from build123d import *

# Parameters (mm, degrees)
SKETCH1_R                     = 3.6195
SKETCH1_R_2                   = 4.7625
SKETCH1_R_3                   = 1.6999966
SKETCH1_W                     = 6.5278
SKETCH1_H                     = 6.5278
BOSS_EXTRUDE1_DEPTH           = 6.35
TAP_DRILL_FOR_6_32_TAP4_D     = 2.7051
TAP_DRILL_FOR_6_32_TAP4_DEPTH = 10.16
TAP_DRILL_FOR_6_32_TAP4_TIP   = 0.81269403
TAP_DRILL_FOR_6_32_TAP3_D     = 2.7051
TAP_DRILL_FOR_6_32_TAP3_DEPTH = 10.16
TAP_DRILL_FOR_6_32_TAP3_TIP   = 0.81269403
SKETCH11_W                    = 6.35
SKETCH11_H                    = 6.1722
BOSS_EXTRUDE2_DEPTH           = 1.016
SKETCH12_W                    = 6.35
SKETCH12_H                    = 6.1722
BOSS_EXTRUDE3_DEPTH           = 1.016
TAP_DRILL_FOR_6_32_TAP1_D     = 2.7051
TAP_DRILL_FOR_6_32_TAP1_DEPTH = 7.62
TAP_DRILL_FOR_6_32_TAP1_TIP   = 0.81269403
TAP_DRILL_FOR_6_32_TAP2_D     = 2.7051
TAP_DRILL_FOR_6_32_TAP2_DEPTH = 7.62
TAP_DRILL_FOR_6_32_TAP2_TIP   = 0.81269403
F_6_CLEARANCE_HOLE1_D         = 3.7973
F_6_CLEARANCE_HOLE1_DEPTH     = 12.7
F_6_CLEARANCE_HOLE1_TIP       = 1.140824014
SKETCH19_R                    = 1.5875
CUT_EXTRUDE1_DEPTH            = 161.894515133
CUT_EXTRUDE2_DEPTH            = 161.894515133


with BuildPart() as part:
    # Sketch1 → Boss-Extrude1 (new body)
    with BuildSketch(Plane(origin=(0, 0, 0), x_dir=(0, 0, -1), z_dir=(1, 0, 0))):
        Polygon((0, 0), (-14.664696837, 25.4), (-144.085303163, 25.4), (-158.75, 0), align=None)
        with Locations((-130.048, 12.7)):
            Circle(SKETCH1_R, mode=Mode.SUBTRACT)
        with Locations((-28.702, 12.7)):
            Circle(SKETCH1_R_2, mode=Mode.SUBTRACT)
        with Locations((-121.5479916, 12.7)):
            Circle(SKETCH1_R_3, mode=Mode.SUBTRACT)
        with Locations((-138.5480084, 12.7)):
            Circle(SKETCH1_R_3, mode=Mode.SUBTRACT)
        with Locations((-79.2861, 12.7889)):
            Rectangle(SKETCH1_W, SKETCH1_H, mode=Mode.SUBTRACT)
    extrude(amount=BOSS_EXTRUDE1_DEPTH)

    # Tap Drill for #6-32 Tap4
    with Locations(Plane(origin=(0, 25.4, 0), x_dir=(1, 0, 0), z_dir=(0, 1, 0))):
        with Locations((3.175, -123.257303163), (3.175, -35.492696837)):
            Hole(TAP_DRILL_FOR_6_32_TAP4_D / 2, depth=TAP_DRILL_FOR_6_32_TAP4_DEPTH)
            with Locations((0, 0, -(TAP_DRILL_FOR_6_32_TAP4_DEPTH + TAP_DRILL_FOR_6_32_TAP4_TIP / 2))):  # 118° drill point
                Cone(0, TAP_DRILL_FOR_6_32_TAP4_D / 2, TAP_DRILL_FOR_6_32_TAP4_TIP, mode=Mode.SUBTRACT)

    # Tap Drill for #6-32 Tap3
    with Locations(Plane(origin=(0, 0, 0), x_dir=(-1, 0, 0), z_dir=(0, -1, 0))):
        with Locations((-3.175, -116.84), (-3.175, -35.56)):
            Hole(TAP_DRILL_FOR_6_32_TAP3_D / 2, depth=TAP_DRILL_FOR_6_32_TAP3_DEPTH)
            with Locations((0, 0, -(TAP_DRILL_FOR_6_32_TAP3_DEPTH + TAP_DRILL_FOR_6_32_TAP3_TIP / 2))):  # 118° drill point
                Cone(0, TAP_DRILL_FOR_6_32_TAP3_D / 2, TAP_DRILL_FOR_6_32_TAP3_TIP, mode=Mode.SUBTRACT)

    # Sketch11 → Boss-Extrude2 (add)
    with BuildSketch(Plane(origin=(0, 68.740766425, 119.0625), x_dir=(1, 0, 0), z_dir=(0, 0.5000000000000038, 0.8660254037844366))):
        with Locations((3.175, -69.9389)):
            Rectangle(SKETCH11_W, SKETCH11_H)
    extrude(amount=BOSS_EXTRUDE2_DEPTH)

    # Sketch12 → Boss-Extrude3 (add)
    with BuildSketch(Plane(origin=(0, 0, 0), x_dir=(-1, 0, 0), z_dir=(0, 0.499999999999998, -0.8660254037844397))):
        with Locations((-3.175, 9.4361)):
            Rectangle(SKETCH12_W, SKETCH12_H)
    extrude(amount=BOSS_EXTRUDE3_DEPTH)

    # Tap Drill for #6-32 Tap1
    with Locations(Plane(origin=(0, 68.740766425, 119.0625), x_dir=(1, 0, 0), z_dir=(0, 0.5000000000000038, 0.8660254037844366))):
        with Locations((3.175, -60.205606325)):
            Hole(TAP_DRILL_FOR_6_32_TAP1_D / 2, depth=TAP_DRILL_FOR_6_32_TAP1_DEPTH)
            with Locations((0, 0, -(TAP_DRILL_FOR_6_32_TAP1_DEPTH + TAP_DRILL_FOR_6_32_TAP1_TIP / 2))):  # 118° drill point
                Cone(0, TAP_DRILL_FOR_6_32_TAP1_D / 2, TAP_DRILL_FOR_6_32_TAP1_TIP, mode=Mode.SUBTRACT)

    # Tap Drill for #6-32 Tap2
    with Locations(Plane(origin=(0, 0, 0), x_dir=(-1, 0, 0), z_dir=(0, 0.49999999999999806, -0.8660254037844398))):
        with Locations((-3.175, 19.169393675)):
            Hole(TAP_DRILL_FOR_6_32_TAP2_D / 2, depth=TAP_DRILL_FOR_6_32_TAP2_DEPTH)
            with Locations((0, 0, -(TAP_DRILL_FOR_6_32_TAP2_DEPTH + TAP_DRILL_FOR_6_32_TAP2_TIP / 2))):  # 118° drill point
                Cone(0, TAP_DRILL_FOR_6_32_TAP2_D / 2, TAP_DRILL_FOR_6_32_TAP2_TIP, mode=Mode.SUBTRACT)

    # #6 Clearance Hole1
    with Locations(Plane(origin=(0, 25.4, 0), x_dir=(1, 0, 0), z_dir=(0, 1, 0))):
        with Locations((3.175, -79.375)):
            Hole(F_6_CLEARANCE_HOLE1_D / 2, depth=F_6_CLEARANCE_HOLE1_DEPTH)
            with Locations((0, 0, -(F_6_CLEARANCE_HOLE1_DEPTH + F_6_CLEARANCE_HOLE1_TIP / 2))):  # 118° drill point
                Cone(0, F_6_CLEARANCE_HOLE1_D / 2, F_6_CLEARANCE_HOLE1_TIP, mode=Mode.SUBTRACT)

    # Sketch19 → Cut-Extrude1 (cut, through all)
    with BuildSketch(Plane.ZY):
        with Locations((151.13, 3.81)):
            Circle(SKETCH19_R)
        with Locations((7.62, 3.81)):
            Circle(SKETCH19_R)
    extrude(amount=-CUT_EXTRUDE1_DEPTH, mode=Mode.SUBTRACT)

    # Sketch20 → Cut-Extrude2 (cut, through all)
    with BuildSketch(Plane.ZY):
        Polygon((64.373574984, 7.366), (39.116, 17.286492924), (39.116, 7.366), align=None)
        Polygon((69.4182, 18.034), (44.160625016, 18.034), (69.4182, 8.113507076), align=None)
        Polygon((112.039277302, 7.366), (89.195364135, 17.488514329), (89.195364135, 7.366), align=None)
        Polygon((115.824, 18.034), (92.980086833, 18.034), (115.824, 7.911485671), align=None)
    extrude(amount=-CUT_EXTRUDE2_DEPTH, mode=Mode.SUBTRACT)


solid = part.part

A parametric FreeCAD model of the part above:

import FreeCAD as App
import Part
import Sketcher
from FreeCAD import Vector
Q = App.Units.Quantity


def add_polygon(sketch, points):
    """Adds a closed chain of lines whose ends are joined by coincident constraints."""
    first, n = sketch.GeometryCount, len(points)
    for a, b in zip(points, points[1:] + points[:1]):
        sketch.addGeometry(Part.LineSegment(App.Vector(*a, 0), App.Vector(*b, 0)), False)
    for i in range(n):
        sketch.addConstraint(Sketcher.Constraint("Coincident", first + i, 2, first + (i + 1) % n, 1))

doc = App.newDocument("Part")
params = doc.addObject("Spreadsheet::Sheet", "Params")
for row, (alias, value) in enumerate([
    ("sketch1_diameter", "0.285 in"),
    ("sketch1_diameter2", "0.375 in"),
    ("sketch1_height", "6.25 in"),
    ("sketch1_width", "0.257 in"),
    ("pad1_length", "0.25 in"),
    ("hole_diameter", "0.1065 in"),
    ("hole_depth", "0.4 in"),
    ("hole2_diameter", "0.1065 in"),
    ("hole2_depth", "0.4 in"),
    ("sketch4_width", "0.25 in"),
    ("sketch4_height", "0.243 in"),
    ("pad2_length", "0.04 in"),
    ("sketch5_width", "0.25 in"),
    ("sketch5_height", "0.243 in"),
    ("pad3_length", "0.04 in"),
    ("hole3_diameter", "0.1065 in"),
    ("hole3_depth", "0.3 in"),
    ("hole4_diameter", "0.1065 in"),
    ("hole4_depth", "0.3 in"),
    ("hole5_diameter", "0.1495 in"),
    ("hole5_depth", "0.5 in"),
    ("sketch9_diameter", "0.125 in"),
], start=1):
    params.set(f"A{row}", alias)
    params.set(f"B{row}", "=" + value)
    params.setAlias(f"B{row}", alias)

body = doc.addObject("PartDesign::Body", "Body")

sketch1 = body.newObject("Sketcher::SketchObject", "Sketch")
sketch1.AttachmentSupport = (doc.getObject("YZ_Plane"), [""])
sketch1.MapMode = "FlatFace"
add_polygon(sketch1, [(0, 0), (25.4, 14.7), (25.4, 144.1), (0, 158.8)])
sketch1.addGeometry(Part.Circle(Vector(12.7, 138.5, 0), Vector(0, 0, 1), 1.7), False)
sketch1.addGeometry(Part.Circle(Vector(12.7, 130, 0), Vector(0, 0, 1), 3.6), False)
sketch1.addGeometry(Part.Circle(Vector(12.7, 121.5, 0), Vector(0, 0, 1), 1.7), False)
add_polygon(sketch1, [(9.5, 76), (9.5, 82.5), (16.1, 82.5), (16.1, 76)])
sketch1.addGeometry(Part.Circle(Vector(12.7, 28.7, 0), Vector(0, 0, 1), 4.8), False)
sketch1.addConstraint(Sketcher.Constraint("Vertical", 1))
sketch1.addConstraint(Sketcher.Constraint("Vertical", 3))
sketch1.addConstraint(Sketcher.Constraint("Vertical", 7))
sketch1.addConstraint(Sketcher.Constraint("Horizontal", 8))
sketch1.addConstraint(Sketcher.Constraint("Vertical", 9))
sketch1.addConstraint(Sketcher.Constraint("Horizontal", 10))
sketch1.addConstraint(Sketcher.Constraint("Coincident", 3, 2, -1, 1))
sketch1.addConstraint(Sketcher.Constraint("Equal", 4, 6))
sketch1.addConstraint(Sketcher.Constraint("Vertical", 4, 3, 5, 3))
sketch1.addConstraint(Sketcher.Constraint("Vertical", 5, 3, 6, 3))
sketch1.addConstraint(Sketcher.Constraint("Vertical", 6, 3, 11, 3))
sketch1.addConstraint(Sketcher.Constraint("Equal", 10, 7))
sketch1.addConstraint(Sketcher.Constraint("Equal", 0, 2))
sketch1.addConstraint(Sketcher.Constraint("Diameter", 5, Q("0.285 in")))
sketch1.addConstraint(Sketcher.Constraint("Diameter", 11, Q("0.375 in")))
sketch1.addConstraint(Sketcher.Constraint("DistanceX", -1, 1, 0, 2, Q("1 in")))
sketch1.addConstraint(Sketcher.Constraint("Angle", 0, Q("30 deg")))
sketch1.addConstraint(Sketcher.Constraint("DistanceY", 3, 2, 3, 1, Q("6.25 in")))
sketch1.addConstraint(Sketcher.Constraint("DistanceX", -1, 1, 4, 3, Q("0.5 in")))
sketch1.addConstraint(Sketcher.Constraint("DistanceX", 8, 1, 8, 2, Q("0.257 in")))
sketch1.addConstraint(Sketcher.Constraint("DistanceY", -1, 1, 5, 3, Q("5.12 in")))
sketch1.addConstraint(Sketcher.Constraint("DistanceY", -1, 1, 11, 3, Q("1.13 in")))
sketch1.addConstraint(Sketcher.Constraint("DistanceY", -1, 1, 7, 2, Q("3.25 in")))
sketch1.addConstraint(Sketcher.Constraint("DistanceX", -1, 1, 7, 2, Q("0.375 in")))
sketch1.addConstraint(Sketcher.Constraint("Diameter", 4, Q("3.399993 mm")))
sketch1.addConstraint(Sketcher.Constraint("DistanceY", -1, 1, 4, 3, Q("138.548008 mm")))
sketch1.addConstraint(Sketcher.Constraint("DistanceY", -1, 1, 6, 3, Q("121.547992 mm")))
sketch1.setExpression("Constraints[21]", "Params.sketch1_diameter")
sketch1.setExpression("Constraints[22]", "Params.sketch1_diameter2")
sketch1.setExpression("Constraints[25]", "Params.sketch1_height")
sketch1.setExpression("Constraints[27]", "Params.sketch1_width")
pad1 = body.newObject("PartDesign::Pad", "Pad")
pad1.Profile = sketch1
pad1.setExpression("Length", "Params.pad1_length")

sketch2 = body.newObject("Sketcher::SketchObject", "Sketch001")
sketch2.AttachmentSupport = (doc.getObject("XZ_Plane"), [""])
sketch2.MapMode = "FlatFace"
sketch2.AttachmentOffset = App.Placement(Vector(0, 0, -1 * 25.4), App.Rotation())
sketch2.addGeometry(Part.Circle(Vector(3.2, 123.3, 0), Vector(0, 0, 1), 1.4), False)
sketch2.addGeometry(Part.Circle(Vector(3.2, 35.5, 0), Vector(0, 0, 1), 1.4), False)
sketch2.addConstraint(Sketcher.Constraint("Equal", 0, 1))
sketch2.addConstraint(Sketcher.Constraint("Vertical", 0, 3, 1, 3))
sketch2.addConstraint(Sketcher.Constraint("Diameter", 0, Q("0.1065 in")))
sketch2.addConstraint(Sketcher.Constraint("DistanceX", -1, 1, 0, 3, Q("0.125 in")))
sketch2.addConstraint(Sketcher.Constraint("DistanceY", -1, 1, 0, 3, Q("123.257303 mm")))
sketch2.addConstraint(Sketcher.Constraint("DistanceY", -1, 1, 1, 3, Q("35.492697 mm")))
doc.recompute()
hole = body.newObject("PartDesign::Hole", "Hole")
hole.Profile = sketch2
hole.ThreadType = "None"
hole.setExpression("Diameter", "Params.hole_diameter")
hole.DepthType = "Dimension"
hole.setExpression("Depth", "Params.hole_depth")
hole.DrillPoint = "Angled"
hole.DrillPointAngle = 118
hole.Reversed = True

sketch3 = body.newObject("Sketcher::SketchObject", "Sketch002")
sketch3.AttachmentSupport = (doc.getObject("XZ_Plane"), [""])
sketch3.MapMode = "FlatFace"
sketch3.addGeometry(Part.Circle(Vector(3.2, 116.8, 0), Vector(0, 0, 1), 1.4), False)
sketch3.addGeometry(Part.Circle(Vector(3.2, 35.6, 0), Vector(0, 0, 1), 1.4), False)
sketch3.addConstraint(Sketcher.Constraint("Equal", 0, 1))
sketch3.addConstraint(Sketcher.Constraint("Vertical", 0, 3, 1, 3))
sketch3.addConstraint(Sketcher.Constraint("Diameter", 0, Q("0.1065 in")))
sketch3.addConstraint(Sketcher.Constraint("DistanceY", -1, 1, 0, 3, Q("4.6 in")))
sketch3.addConstraint(Sketcher.Constraint("DistanceY", -1, 1, 1, 3, Q("1.4 in")))
sketch3.addConstraint(Sketcher.Constraint("DistanceX", -1, 1, 0, 3, Q("0.125 in")))
doc.recompute()
hole2 = body.newObject("PartDesign::Hole", "Hole001")
hole2.Profile = sketch3
hole2.ThreadType = "None"
hole2.setExpression("Diameter", "Params.hole2_diameter")
hole2.DepthType = "Dimension"
hole2.setExpression("Depth", "Params.hole2_depth")
hole2.DrillPoint = "Angled"
hole2.DrillPointAngle = 118

sketch4 = body.newObject("Sketcher::SketchObject", "Sketch003")
sketch4.Placement = App.Placement(Vector(0, 68.740766, 119.0625), App.Rotation(Vector(1, 0, 0), Vector(0, 0.866025404, -0.5), Vector(0, 0.5, 0.866025404), "ZXY"))
add_polygon(sketch4, [(0, -67), (0, -73), (6, -73), (6, -67)])
sketch4.addConstraint(Sketcher.Constraint("Vertical", 0))
sketch4.addConstraint(Sketcher.Constraint("Horizontal", 1))
sketch4.addConstraint(Sketcher.Constraint("Vertical", 2))
sketch4.addConstraint(Sketcher.Constraint("Horizontal", 3))
sketch4.addConstraint(Sketcher.Constraint("PointOnObject", 0, 2, -2))
sketch4.addConstraint(Sketcher.Constraint("DistanceX", 1, 1, 1, 2, Q("0.25 in")))
sketch4.addConstraint(Sketcher.Constraint("DistanceY", 0, 2, 0, 1, Q("0.243 in")))
sketch4.addConstraint(Sketcher.Constraint("DistanceY", 0, 2, -1, 1, Q("2.875 in")))
sketch4.setExpression("Constraints[9]", "Params.sketch4_width")
sketch4.setExpression("Constraints[10]", "Params.sketch4_height")
pad2 = body.newObject("PartDesign::Pad", "Pad001")
pad2.Profile = sketch4
pad2.setExpression("Length", "Params.pad2_length")

sketch5 = body.newObject("Sketcher::SketchObject", "Sketch004")
sketch5.Placement = App.Placement(Vector(0, 0, 0), App.Rotation(Vector(-1, 0, 0), Vector(0, 0.866025404, 0.5), Vector(0, 0.5, -0.866025404), "ZXY"))
add_polygon(sketch5, [(-6, 13), (-6, 6), (0, 6), (0, 13)])
sketch5.addConstraint(Sketcher.Constraint("Vertical", 0))
sketch5.addConstraint(Sketcher.Constraint("Horizontal", 1))
sketch5.addConstraint(Sketcher.Constraint("Vertical", 2))
sketch5.addConstraint(Sketcher.Constraint("Horizontal", 3))
sketch5.addConstraint(Sketcher.Constraint("PointOnObject", 1, 2, -2))
sketch5.addConstraint(Sketcher.Constraint("DistanceX", 1, 1, 1, 2, Q("0.25 in")))
sketch5.addConstraint(Sketcher.Constraint("DistanceY", 0, 2, 0, 1, Q("0.243 in")))
sketch5.addConstraint(Sketcher.Constraint("DistanceY", -1, 1, 0, 2, Q("0.25 in")))
sketch5.setExpression("Constraints[9]", "Params.sketch5_width")
sketch5.setExpression("Constraints[10]", "Params.sketch5_height")
pad3 = body.newObject("PartDesign::Pad", "Pad002")
pad3.Profile = sketch5
pad3.setExpression("Length", "Params.pad3_length")

sketch6 = body.newObject("Sketcher::SketchObject", "Sketch005")
sketch6.Placement = App.Placement(Vector(0, 68.740766, 119.0625), App.Rotation(Vector(1, 0, 0), Vector(0, 0.866025404, -0.5), Vector(0, 0.5, 0.866025404), "ZXY"))
sketch6.addGeometry(Part.Circle(Vector(3.2, -60.2, 0), Vector(0, 0, 1), 1.4), False)
sketch6.addConstraint(Sketcher.Constraint("Diameter", 0, Q("0.1065 in")))
sketch6.addConstraint(Sketcher.Constraint("DistanceX", -1, 1, 0, 3, Q("0.125 in")))
sketch6.addConstraint(Sketcher.Constraint("DistanceY", 0, 3, -1, 1, Q("60.205606 mm")))
doc.recompute()
hole3 = body.newObject("PartDesign::Hole", "Hole002")
hole3.Profile = sketch6
hole3.ThreadType = "None"
hole3.setExpression("Diameter", "Params.hole3_diameter")
hole3.DepthType = "Dimension"
hole3.setExpression("Depth", "Params.hole3_depth")
hole3.DrillPoint = "Angled"
hole3.DrillPointAngle = 118

sketch7 = body.newObject("Sketcher::SketchObject", "Sketch006")
sketch7.Placement = App.Placement(Vector(0, 0, 0), App.Rotation(Vector(-1, 0, 0), Vector(0, 0.866025404, 0.5), Vector(0, 0.5, -0.866025404), "ZXY"))
sketch7.addGeometry(Part.Circle(Vector(-3.2, 19.2, 0), Vector(0, 0, 1), 1.4), False)
sketch7.addConstraint(Sketcher.Constraint("Diameter", 0, Q("0.1065 in")))
sketch7.addConstraint(Sketcher.Constraint("DistanceX", 0, 3, -1, 1, Q("0.125 in")))
sketch7.addConstraint(Sketcher.Constraint("DistanceY", -1, 1, 0, 3, Q("19.169394 mm")))
doc.recompute()
hole4 = body.newObject("PartDesign::Hole", "Hole003")
hole4.Profile = sketch7
hole4.ThreadType = "None"
hole4.setExpression("Diameter", "Params.hole4_diameter")
hole4.DepthType = "Dimension"
hole4.setExpression("Depth", "Params.hole4_depth")
hole4.DrillPoint = "Angled"
hole4.DrillPointAngle = 118

sketch8 = body.newObject("Sketcher::SketchObject", "Sketch007")
sketch8.AttachmentSupport = (doc.getObject("XZ_Plane"), [""])
sketch8.MapMode = "FlatFace"
sketch8.AttachmentOffset = App.Placement(Vector(0, 0, -1 * 25.4), App.Rotation())
sketch8.addGeometry(Part.Circle(Vector(3.2, 79.4, 0), Vector(0, 0, 1), 1.9), False)
sketch8.addConstraint(Sketcher.Constraint("Diameter", 0, Q("0.1495 in")))
sketch8.addConstraint(Sketcher.Constraint("DistanceX", -1, 1, 0, 3, Q("0.125 in")))
sketch8.addConstraint(Sketcher.Constraint("DistanceY", -1, 1, 0, 3, Q("3.125 in")))
doc.recompute()
hole5 = body.newObject("PartDesign::Hole", "Hole004")
hole5.Profile = sketch8
hole5.ThreadType = "None"
hole5.setExpression("Diameter", "Params.hole5_diameter")
hole5.DepthType = "Dimension"
hole5.setExpression("Depth", "Params.hole5_depth")
hole5.DrillPoint = "Angled"
hole5.DrillPointAngle = 118
hole5.Reversed = True

sketch9 = body.newObject("Sketcher::SketchObject", "Sketch008")
sketch9.AttachmentSupport = (doc.getObject("YZ_Plane"), [""])
sketch9.MapMode = "FlatFace"
sketch9.addGeometry(Part.Circle(Vector(3.8, 151.1, 0), Vector(0, 0, 1), 1.6), False)
sketch9.addGeometry(Part.Circle(Vector(3.8, 7.6, 0), Vector(0, 0, 1), 1.6), False)
sketch9.addConstraint(Sketcher.Constraint("Equal", 0, 1))
sketch9.addConstraint(Sketcher.Constraint("Vertical", 0, 3, 1, 3))
sketch9.addConstraint(Sketcher.Constraint("Diameter", 0, Q("0.125 in")))
sketch9.addConstraint(Sketcher.Constraint("DistanceY", -1, 1, 1, 3, Q("0.3 in")))
sketch9.addConstraint(Sketcher.Constraint("DistanceX", -1, 1, 0, 3, Q("0.15 in")))
sketch9.addConstraint(Sketcher.Constraint("DistanceY", -1, 1, 0, 3, Q("5.95 in")))
sketch9.setExpression("Constraints[2]", "Params.sketch9_diameter")
pocket1 = body.newObject("PartDesign::Pocket", "Pocket")
pocket1.Profile = sketch9
pocket1.Type = "ThroughAll"
pocket1.Reversed = True

sketch10 = body.newObject("Sketcher::SketchObject", "Sketch009")
sketch10.AttachmentSupport = (doc.getObject("YZ_Plane"), [""])
sketch10.MapMode = "FlatFace"
add_polygon(sketch10, [(7, 64), (17, 39), (7, 39)])
add_polygon(sketch10, [(18, 69), (18, 44), (8, 69)])
add_polygon(sketch10, [(7, 112), (17, 89), (7, 89)])
add_polygon(sketch10, [(18, 116), (18, 93), (8, 116)])
sketch10.addConstraint(Sketcher.Constraint("Horizontal", 1))
sketch10.addConstraint(Sketcher.Constraint("Vertical", 2))
sketch10.addConstraint(Sketcher.Constraint("Vertical", 3))
sketch10.addConstraint(Sketcher.Constraint("Horizontal", 5))
sketch10.addConstraint(Sketcher.Constraint("Horizontal", 7))
sketch10.addConstraint(Sketcher.Constraint("Vertical", 8))
sketch10.addConstraint(Sketcher.Constraint("Vertical", 9))
sketch10.addConstraint(Sketcher.Constraint("Horizontal", 11))
sketch10.addConstraint(Sketcher.Constraint("Parallel", 0, 4))
sketch10.addConstraint(Sketcher.Constraint("Parallel", 6, 10))
sketch10.addConstraint(Sketcher.Constraint("Vertical", 2, 2, 7, 2))
sketch10.addConstraint(Sketcher.Constraint("Vertical", 5, 2, 9, 2))
sketch10.addConstraint(Sketcher.Constraint("Equal", 1, 5))
sketch10.addConstraint(Sketcher.Constraint("Equal", 7, 11))
sketch10.addConstraint(Sketcher.Constraint("DistanceY", -1, 1, 0, 2, Q("1.54 in")))
sketch10.addConstraint(Sketcher.Constraint("DistanceX", -1, 1, 1, 2, Q("0.29 in")))
sketch10.addConstraint(Sketcher.Constraint("DistanceX", -1, 1, 3, 2, Q("0.71 in")))
sketch10.addConstraint(Sketcher.Constraint("DistanceY", -1, 1, 10, 2, Q("4.56 in")))
sketch10.addConstraint(Sketcher.Constraint("DistanceY", -1, 1, 4, 2, Q("2.733 in")))
sketch10.addConstraint(Sketcher.Constraint("Distance", 6, Q("24.986189 mm")))
sketch10.addConstraint(Sketcher.Constraint("DistanceX", 1, 2, 1, 1, Q("9.920493 mm")))
sketch10.addConstraint(Sketcher.Constraint("DistanceX", 7, 2, 7, 1, Q("10.122514 mm")))
sketch10.addConstraint(Sketcher.Constraint("DistanceY", 2, 1, 2, 2, Q("25.257575 mm")))
sketch10.addConstraint(Sketcher.Constraint("DistanceY", 2, 2, 6, 2, Q("24.821789 mm")))
pocket2 = body.newObject("PartDesign::Pocket", "Pocket001")
pocket2.Profile = sketch10
pocket2.Type = "ThroughAll"
pocket2.Reversed = True

doc.recompute()
